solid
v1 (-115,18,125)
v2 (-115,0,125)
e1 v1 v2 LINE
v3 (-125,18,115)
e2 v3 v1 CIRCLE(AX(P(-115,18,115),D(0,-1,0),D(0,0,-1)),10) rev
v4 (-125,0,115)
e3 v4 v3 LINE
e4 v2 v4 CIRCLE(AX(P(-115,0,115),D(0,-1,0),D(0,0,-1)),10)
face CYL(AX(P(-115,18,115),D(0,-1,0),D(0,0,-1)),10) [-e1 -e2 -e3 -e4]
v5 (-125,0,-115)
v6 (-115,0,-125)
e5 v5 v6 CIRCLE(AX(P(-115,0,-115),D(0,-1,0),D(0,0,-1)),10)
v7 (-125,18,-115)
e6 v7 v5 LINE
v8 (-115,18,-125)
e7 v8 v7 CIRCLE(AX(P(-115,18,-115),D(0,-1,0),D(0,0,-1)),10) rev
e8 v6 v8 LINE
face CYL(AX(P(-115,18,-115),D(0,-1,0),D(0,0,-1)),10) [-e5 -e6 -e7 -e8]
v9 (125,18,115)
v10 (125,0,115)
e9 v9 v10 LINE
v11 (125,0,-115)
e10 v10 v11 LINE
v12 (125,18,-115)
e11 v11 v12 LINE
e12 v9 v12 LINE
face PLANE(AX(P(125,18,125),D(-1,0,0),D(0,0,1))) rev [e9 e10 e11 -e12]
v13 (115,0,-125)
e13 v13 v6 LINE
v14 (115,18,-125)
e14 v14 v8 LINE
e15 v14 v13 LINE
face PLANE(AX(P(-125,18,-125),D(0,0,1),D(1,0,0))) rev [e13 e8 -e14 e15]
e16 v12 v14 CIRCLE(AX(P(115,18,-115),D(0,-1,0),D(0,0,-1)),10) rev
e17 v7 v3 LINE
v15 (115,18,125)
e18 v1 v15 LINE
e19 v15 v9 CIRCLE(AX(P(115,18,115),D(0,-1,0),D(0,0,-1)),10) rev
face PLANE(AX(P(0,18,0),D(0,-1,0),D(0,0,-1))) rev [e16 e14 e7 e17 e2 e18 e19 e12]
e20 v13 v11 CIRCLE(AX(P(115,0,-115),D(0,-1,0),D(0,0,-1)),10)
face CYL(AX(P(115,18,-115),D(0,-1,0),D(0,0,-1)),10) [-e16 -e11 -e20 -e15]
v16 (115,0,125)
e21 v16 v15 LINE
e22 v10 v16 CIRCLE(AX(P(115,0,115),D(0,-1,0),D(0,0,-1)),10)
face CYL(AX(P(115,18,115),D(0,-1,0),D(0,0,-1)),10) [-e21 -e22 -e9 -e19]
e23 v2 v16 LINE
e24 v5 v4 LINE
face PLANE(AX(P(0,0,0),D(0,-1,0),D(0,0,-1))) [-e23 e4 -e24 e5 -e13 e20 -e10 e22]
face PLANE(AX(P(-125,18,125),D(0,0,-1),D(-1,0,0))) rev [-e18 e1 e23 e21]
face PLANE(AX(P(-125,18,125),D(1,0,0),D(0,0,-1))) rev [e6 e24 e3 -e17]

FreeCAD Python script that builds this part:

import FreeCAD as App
import Part
import Sketcher
from FreeCAD import Vector
Q = App.Units.Quantity


def edges_at(feature, points):
    """Names of the edges that pass closest to the given points."""
    edges = feature.Shape.Edges
    near = lambda p: min(range(len(edges)), key=lambda i: edges[i].distToShape(Part.Vertex(*p))[0])
    return sorted({f"Edge{near(p) + 1}" for p in points})

doc = App.newDocument("Part")
body = doc.addObject("PartDesign::Body", "Body")

# Sketch on XZ plane
sketch1 = doc.addObject("Sketcher::SketchObject", "Sketch")
body.addObject(sketch1)
sketch1.AttachmentSupport = (doc.XZ_Plane, [""])
sketch1.MapMode = "FlatFace"
sketch1.addGeometry([
    Part.LineSegment(Vector(-125, -125, 0), Vector(-125, 125, 0)),
    Part.LineSegment(Vector(-125, 125, 0), Vector(125, 125, 0)),
    Part.LineSegment(Vector(125, 125, 0), Vector(125, -125, 0)),
    Part.LineSegment(Vector(125, -125, 0), Vector(-125, -125, 0)),
], False)
sketch1.addConstraint([
    Sketcher.Constraint("Coincident", 0, 2, 1, 1),
    Sketcher.Constraint("Coincident", 1, 2, 2, 1),
    Sketcher.Constraint("Coincident", 2, 2, 3, 1),
    Sketcher.Constraint("Coincident", 3, 2, 0, 1),
    Sketcher.Constraint("Vertical", 0),
    Sketcher.Constraint("Horizontal", 1),
    Sketcher.Constraint("Vertical", 2),
    Sketcher.Constraint("Horizontal", 3),
    Sketcher.Constraint("Symmetric", 0, 2, 2, 2, -1, 1),
    Sketcher.Constraint("Equal", 3, 0),
    Sketcher.Constraint("DistanceX", 1, 1, 1, 2, Q("250 mm")),
])
pad1 = doc.addObject("PartDesign::Pad", "Pad")
body.addObject(pad1)
pad1.Profile = sketch1
pad1.Length = 18
pad1.Reversed = True
doc.recompute()

fillet = doc.addObject("PartDesign::Fillet", "Fillet")
body.addObject(fillet)
fillet.Base = (pad1, edges_at(pad1, [
    (-125, 9, -125),
    (125, 9, -125),
    (125, 9, 125),
    (-125, 9, 125),
]))
fillet.Radius = 10

doc.recompute()
